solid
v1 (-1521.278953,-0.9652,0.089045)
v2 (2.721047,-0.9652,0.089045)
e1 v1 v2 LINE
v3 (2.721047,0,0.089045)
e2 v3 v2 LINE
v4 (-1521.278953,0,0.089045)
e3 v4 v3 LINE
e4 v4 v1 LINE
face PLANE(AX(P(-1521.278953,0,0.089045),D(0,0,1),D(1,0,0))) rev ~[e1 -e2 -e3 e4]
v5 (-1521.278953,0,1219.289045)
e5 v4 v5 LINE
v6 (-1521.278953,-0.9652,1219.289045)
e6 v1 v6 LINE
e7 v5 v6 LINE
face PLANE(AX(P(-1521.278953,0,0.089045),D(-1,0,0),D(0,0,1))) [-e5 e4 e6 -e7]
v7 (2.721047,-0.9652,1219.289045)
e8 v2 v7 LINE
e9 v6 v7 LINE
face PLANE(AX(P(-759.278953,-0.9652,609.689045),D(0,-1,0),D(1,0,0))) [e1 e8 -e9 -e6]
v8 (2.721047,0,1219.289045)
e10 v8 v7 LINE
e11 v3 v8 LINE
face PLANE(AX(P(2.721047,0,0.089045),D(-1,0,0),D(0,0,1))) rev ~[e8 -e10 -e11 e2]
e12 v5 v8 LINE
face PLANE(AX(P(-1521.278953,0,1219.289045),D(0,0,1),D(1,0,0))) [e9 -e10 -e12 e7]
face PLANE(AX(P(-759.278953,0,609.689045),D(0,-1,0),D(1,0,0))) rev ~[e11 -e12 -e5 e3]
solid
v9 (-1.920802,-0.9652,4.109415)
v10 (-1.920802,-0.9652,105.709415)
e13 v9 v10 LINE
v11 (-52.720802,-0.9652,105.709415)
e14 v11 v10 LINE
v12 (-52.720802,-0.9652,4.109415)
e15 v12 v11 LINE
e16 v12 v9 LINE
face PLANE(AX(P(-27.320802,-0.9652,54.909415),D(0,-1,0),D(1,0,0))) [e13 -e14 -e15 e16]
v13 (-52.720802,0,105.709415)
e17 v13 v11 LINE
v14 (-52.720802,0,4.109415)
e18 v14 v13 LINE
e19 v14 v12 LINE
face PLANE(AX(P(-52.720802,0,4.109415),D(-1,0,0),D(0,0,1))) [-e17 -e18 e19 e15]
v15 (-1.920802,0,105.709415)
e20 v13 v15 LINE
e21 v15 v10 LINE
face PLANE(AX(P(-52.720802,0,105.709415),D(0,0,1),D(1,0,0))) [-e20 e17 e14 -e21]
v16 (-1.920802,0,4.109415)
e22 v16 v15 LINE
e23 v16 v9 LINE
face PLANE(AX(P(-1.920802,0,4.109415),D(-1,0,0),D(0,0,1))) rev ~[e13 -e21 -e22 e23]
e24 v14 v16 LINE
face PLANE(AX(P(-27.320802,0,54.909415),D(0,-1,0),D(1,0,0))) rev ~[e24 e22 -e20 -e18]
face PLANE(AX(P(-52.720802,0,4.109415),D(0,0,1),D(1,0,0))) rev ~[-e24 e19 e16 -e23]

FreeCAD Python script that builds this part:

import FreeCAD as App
import Part
import Sketcher
Q = App.Units.Quantity

doc = App.newDocument("Part")
body = doc.addObject("PartDesign::Body", "Body")

# Sketch on XZ plane
sketch1 = doc.addObject("Sketcher::SketchObject", "Sketch")
body.addObject(sketch1)
sketch1.AttachmentSupport = (doc.XZ_Plane, [""])
sketch1.MapMode = "FlatFace"
sketch1.addGeometry(Part.LineSegment(App.Vector(-1521, 1219, 0), App.Vector(-1521, 0, 0)), False)
sketch1.addGeometry(Part.LineSegment(App.Vector(-1521, 0, 0), App.Vector(3, 0, 0)), False)
sketch1.addGeometry(Part.LineSegment(App.Vector(3, 0, 0), App.Vector(3, 1219, 0)), False)
sketch1.addGeometry(Part.LineSegment(App.Vector(3, 1219, 0), App.Vector(-1521, 1219, 0)), False)
sketch1.addConstraint(Sketcher.Constraint("Coincident", 0, 2, 1, 1))
sketch1.addConstraint(Sketcher.Constraint("Coincident", 1, 2, 2, 1))
sketch1.addConstraint(Sketcher.Constraint("Coincident", 2, 2, 3, 1))
sketch1.addConstraint(Sketcher.Constraint("Coincident", 3, 2, 0, 1))
sketch1.addConstraint(Sketcher.Constraint("Vertical", 0))
sketch1.addConstraint(Sketcher.Constraint("Horizontal", 1))
sketch1.addConstraint(Sketcher.Constraint("Vertical", 2))
sketch1.addConstraint(Sketcher.Constraint("Horizontal", 3))
sketch1.addConstraint(Sketcher.Constraint("DistanceX", 1, 1, 1, 2, Q("60 in")))
sketch1.addConstraint(Sketcher.Constraint("DistanceY", 0, 2, 0, 1, Q("48 in")))
sketch1.addConstraint(Sketcher.Constraint("DistanceX", 0, 2, -1, 1, 1521.278953))
sketch1.addConstraint(Sketcher.Constraint("DistanceY", -1, 1, 0, 2, 0.089045))
pad1 = doc.addObject("PartDesign::Pad", "Pad")
body.addObject(pad1)
pad1.Profile = sketch1
pad1.Length = Q("0.038 in")
body2 = doc.addObject("PartDesign::Body", "Body001")

# Sketch on XZ plane
sketch2 = doc.addObject("Sketcher::SketchObject", "Sketch001")
body2.addObject(sketch2)
sketch2.AttachmentSupport = (doc.getObject("XZ_Plane001"), [""])
sketch2.MapMode = "FlatFace"
sketch2.addGeometry(Part.LineSegment(App.Vector(-53, 106, 0), App.Vector(-53, 4, 0)), False)
sketch2.addGeometry(Part.LineSegment(App.Vector(-53, 4, 0), App.Vector(-2, 4, 0)), False)
sketch2.addGeometry(Part.LineSegment(App.Vector(-2, 4, 0), App.Vector(-2, 106, 0)), False)
sketch2.addGeometry(Part.LineSegment(App.Vector(-2, 106, 0), App.Vector(-53, 106, 0)), False)
sketch2.addConstraint(Sketcher.Constraint("Coincident", 0, 2, 1, 1))
sketch2.addConstraint(Sketcher.Constraint("Coincident", 1, 2, 2, 1))
sketch2.addConstraint(Sketcher.Constraint("Coincident", 2, 2, 3, 1))
sketch2.addConstraint(Sketcher.Constraint("Coincident", 3, 2, 0, 1))
sketch2.addConstraint(Sketcher.Constraint("Vertical", 0))
sketch2.addConstraint(Sketcher.Constraint("Horizontal", 1))
sketch2.addConstraint(Sketcher.Constraint("Vertical", 2))
sketch2.addConstraint(Sketcher.Constraint("Horizontal", 3))
sketch2.addConstraint(Sketcher.Constraint("DistanceX", 1, 1, 1, 2, Q("2 in")))
sketch2.addConstraint(Sketcher.Constraint("DistanceY", 0, 2, 0, 1, Q("4 in")))
sketch2.addConstraint(Sketcher.Constraint("DistanceX", 1, 2, -1, 1, 1.920802))
sketch2.addConstraint(Sketcher.Constraint("DistanceY", -1, 1, 0, 2, 4.109415))
pad2 = doc.addObject("PartDesign::Pad", "Pad001")
body2.addObject(pad2)
pad2.Profile = sketch2
pad2.Length = Q("0.038 in")

doc.recompute()
